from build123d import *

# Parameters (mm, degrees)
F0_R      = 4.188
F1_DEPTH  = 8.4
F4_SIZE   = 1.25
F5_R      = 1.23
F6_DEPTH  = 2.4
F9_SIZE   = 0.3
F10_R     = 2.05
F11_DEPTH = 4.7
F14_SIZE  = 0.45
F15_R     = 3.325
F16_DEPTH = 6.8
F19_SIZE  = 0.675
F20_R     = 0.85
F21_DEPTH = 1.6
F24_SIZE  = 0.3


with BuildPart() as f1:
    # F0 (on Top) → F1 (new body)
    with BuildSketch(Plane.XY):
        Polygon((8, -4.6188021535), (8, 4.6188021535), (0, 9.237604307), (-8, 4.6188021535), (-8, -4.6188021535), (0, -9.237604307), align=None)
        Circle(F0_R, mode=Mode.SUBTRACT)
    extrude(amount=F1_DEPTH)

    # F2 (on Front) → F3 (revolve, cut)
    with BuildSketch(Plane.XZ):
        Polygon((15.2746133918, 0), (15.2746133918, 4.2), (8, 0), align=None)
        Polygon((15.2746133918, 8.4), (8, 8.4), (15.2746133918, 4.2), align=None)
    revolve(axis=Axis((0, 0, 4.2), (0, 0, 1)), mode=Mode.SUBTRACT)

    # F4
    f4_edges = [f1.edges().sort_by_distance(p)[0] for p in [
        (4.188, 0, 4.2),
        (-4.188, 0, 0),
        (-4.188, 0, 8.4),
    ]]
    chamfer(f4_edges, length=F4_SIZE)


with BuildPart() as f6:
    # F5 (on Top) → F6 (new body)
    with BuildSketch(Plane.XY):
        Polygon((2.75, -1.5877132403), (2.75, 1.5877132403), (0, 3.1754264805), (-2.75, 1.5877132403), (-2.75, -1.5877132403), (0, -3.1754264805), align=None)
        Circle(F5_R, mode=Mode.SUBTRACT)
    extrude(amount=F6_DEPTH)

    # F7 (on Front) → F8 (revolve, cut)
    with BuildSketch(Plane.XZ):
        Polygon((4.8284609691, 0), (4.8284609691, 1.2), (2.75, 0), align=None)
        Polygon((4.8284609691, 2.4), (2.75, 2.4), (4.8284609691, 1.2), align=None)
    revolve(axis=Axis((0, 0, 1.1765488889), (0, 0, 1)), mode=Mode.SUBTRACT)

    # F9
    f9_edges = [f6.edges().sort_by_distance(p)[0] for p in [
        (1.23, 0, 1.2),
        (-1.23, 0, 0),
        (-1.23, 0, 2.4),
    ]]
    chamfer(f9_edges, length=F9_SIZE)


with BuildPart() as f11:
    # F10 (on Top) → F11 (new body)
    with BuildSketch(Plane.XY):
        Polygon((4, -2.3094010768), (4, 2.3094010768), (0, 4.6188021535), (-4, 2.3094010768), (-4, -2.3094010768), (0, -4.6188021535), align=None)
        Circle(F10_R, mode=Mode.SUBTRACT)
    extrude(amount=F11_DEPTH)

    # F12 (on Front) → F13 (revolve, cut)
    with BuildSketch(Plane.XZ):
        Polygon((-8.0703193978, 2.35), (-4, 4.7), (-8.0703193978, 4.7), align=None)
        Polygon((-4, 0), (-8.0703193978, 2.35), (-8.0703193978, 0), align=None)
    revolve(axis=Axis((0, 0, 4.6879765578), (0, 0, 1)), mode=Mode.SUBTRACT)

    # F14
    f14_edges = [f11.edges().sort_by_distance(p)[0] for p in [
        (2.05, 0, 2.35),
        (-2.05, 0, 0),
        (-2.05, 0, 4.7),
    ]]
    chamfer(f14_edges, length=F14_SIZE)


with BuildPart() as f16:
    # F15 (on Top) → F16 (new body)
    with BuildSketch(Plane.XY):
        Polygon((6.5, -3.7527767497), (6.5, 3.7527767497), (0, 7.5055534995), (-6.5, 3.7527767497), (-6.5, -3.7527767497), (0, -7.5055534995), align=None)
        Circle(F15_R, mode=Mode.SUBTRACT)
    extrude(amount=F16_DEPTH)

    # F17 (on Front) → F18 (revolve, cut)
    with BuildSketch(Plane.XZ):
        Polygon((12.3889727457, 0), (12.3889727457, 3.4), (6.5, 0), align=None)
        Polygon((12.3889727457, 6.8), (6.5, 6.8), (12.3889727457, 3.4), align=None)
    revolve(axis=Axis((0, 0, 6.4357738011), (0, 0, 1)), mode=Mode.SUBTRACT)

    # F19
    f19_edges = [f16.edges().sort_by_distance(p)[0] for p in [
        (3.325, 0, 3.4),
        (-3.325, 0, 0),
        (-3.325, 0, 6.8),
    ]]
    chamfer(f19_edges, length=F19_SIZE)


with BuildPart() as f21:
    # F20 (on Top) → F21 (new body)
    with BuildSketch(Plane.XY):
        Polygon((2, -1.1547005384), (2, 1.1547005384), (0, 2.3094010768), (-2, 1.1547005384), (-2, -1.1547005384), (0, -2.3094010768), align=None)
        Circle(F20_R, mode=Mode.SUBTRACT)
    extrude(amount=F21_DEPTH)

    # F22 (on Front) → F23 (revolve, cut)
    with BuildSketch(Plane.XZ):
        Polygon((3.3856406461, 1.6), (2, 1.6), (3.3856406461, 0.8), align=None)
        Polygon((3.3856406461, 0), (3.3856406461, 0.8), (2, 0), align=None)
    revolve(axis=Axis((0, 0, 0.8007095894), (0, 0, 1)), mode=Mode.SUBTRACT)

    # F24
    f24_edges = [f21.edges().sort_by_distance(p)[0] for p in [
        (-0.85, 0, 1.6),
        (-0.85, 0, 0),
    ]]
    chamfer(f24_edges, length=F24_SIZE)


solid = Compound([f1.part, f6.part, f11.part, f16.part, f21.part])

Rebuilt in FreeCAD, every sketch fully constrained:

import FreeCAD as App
import Part
import Sketcher
from FreeCAD import Vector
Q = App.Units.Quantity


def edges_at(feature, points):
    """Names of the edges that pass closest to the given points."""
    edges = feature.Shape.Edges
    near = lambda p: min(range(len(edges)), key=lambda i: edges[i].distToShape(Part.Vertex(*p))[0])
    return sorted({f"Edge{near(p) + 1}" for p in points})

doc = App.newDocument("Part")
body = doc.addObject("PartDesign::Body", "Body")

# Sketch on XY plane
sketch1 = body.newObject("Sketcher::SketchObject", "Sketch")
sketch1.AttachmentSupport = (doc.getObject("XY_Plane"), [""])
sketch1.MapMode = "FlatFace"
sketch1.addGeometry([
    Part.LineSegment(Vector(8, -4.6, 0), Vector(8, 4.6, 0)),  # 0
    Part.LineSegment(Vector(8, 4.6, 0), Vector(0, 9.2, 0)),  # 1
    Part.LineSegment(Vector(0, 9.2, 0), Vector(-8, 4.6, 0)),  # 2
    Part.LineSegment(Vector(-8, 4.6, 0), Vector(-8, -4.6, 0)),  # 3
    Part.LineSegment(Vector(-8, -4.6, 0), Vector(0, -9.2, 0)),  # 4
    Part.LineSegment(Vector(0, -9.2, 0), Vector(8, -4.6, 0)),  # 5
    Part.Circle(Vector(0, 0, 0), Vector(0, 0, 1), 4.2),  # 6
], False)
sketch1.addConstraint([
    Sketcher.Constraint("Coincident", 0, 2, 1, 1),
    Sketcher.Constraint("Coincident", 1, 2, 2, 1),
    Sketcher.Constraint("Coincident", 2, 2, 3, 1),
    Sketcher.Constraint("Coincident", 3, 2, 4, 1),
    Sketcher.Constraint("Coincident", 4, 2, 5, 1),
    Sketcher.Constraint("Coincident", 5, 2, 0, 1),
    Sketcher.Constraint("Vertical", 0),
    Sketcher.Constraint("Vertical", 3),
    Sketcher.Constraint("Coincident", 6, 3, -1, 1),
    Sketcher.Constraint("Symmetric", 0, 2, 3, 2, -1, 1),
    Sketcher.Constraint("Symmetric", 1, 2, 4, 2, -1, 1),
    Sketcher.Constraint("PointOnObject", 1, 2, -2),
    Sketcher.Constraint("Parallel", 2, 5),
    Sketcher.Constraint("Horizontal", 0, 2, 2, 2),
    Sketcher.Constraint("Angle", 1, Q("150 deg")),
    Sketcher.Constraint("Diameter", 6, 8.376),
    Sketcher.Constraint("DistanceX", -1, 1, 0, 2, 8.0),
    Sketcher.Constraint("DistanceY", 0, 1, 0, 2, 9.237604),
])
pad1 = body.newObject("PartDesign::Pad", "Pad")
pad1.Profile = sketch1
pad1.Length = 8.4

# Sketch on XZ plane
sketch2 = body.newObject("Sketcher::SketchObject", "Sketch001")
sketch2.AttachmentSupport = (doc.getObject("XZ_Plane"), [""])
sketch2.MapMode = "FlatFace"
sketch2.addGeometry([
    Part.LineSegment(Vector(15.3, 0, 0), Vector(15.3, 4.2, 0)),  # 0
    Part.LineSegment(Vector(15.3, 4.2, 0), Vector(8, 0, 0)),  # 1
    Part.LineSegment(Vector(8, 0, 0), Vector(15.3, 0, 0)),  # 2
    Part.LineSegment(Vector(15.3, 8.4, 0), Vector(8, 8.4, 0)),  # 3
    Part.LineSegment(Vector(8, 8.4, 0), Vector(15.3, 4.2, 0)),  # 4
    Part.LineSegment(Vector(15.3, 4.2, 0), Vector(15.3, 8.4, 0)),  # 5
], False)
sketch2.addConstraint([
    Sketcher.Constraint("Coincident", 0, 2, 1, 1),
    Sketcher.Constraint("Coincident", 1, 2, 2, 1),
    Sketcher.Constraint("Coincident", 2, 2, 0, 1),
    Sketcher.Constraint("Coincident", 3, 2, 4, 1),
    Sketcher.Constraint("Coincident", 4, 2, 5, 1),
    Sketcher.Constraint("Coincident", 5, 2, 3, 1),
    Sketcher.Constraint("Vertical", 0),
    Sketcher.Constraint("Horizontal", 2),
    Sketcher.Constraint("Horizontal", 3),
    Sketcher.Constraint("Vertical", 5),
    Sketcher.Constraint("Coincident", 4, 2, 0, 2),
    Sketcher.Constraint("PointOnObject", 1, 2, -1),
    Sketcher.Constraint("Vertical", 1, 2, 3, 2),
    Sketcher.Constraint("Equal", 0, 5),
    Sketcher.Constraint("Angle", 1, Q("-150 deg")),
    Sketcher.Constraint("DistanceY", 0, 1, 0, 2, 4.2),
    Sketcher.Constraint("DistanceX", -1, 1, 1, 2, 8.0),
])
groove = body.newObject("PartDesign::Groove", "Groove")
groove.Profile = sketch2
groove.ReferenceAxis = (sketch2, ["V_Axis"])
groove.Angle = 360
doc.recompute()

chamfer = body.newObject("PartDesign::Chamfer", "Chamfer")
chamfer.Base = (groove, edges_at(groove, [(4.188, 0, 4.2), (-4.188, 0, 0), (-4.188, 0, 8.4)]))
chamfer.Size = 1.25
body2 = doc.addObject("PartDesign::Body", "Body001")

# Sketch on XY plane
sketch3 = body2.newObject("Sketcher::SketchObject", "Sketch002")
sketch3.AttachmentSupport = (doc.getObject("XY_Plane001"), [""])
sketch3.MapMode = "FlatFace"
sketch3.addGeometry([
    Part.LineSegment(Vector(2.8, -1.6, 0), Vector(2.8, 1.6, 0)),  # 0
    Part.LineSegment(Vector(2.8, 1.6, 0), Vector(0, 3.2, 0)),  # 1
    Part.LineSegment(Vector(0, 3.2, 0), Vector(-2.8, 1.6, 0)),  # 2
    Part.LineSegment(Vector(-2.8, 1.6, 0), Vector(-2.8, -1.6, 0)),  # 3
    Part.LineSegment(Vector(-2.8, -1.6, 0), Vector(0, -3.2, 0)),  # 4
    Part.LineSegment(Vector(0, -3.2, 0), Vector(2.8, -1.6, 0)),  # 5
    Part.Circle(Vector(0, 0, 0), Vector(0, 0, 1), 1.2),  # 6
], False)
sketch3.addConstraint([
    Sketcher.Constraint("Coincident", 0, 2, 1, 1),
    Sketcher.Constraint("Coincident", 1, 2, 2, 1),
    Sketcher.Constraint("Coincident", 2, 2, 3, 1),
    Sketcher.Constraint("Coincident", 3, 2, 4, 1),
    Sketcher.Constraint("Coincident", 4, 2, 5, 1),
    Sketcher.Constraint("Coincident", 5, 2, 0, 1),
    Sketcher.Constraint("Vertical", 0),
    Sketcher.Constraint("Vertical", 3),
    Sketcher.Constraint("Coincident", 6, 3, -1, 1),
    Sketcher.Constraint("Symmetric", 0, 2, 3, 2, -1, 1),
    Sketcher.Constraint("Symmetric", 1, 2, 4, 2, -1, 1),
    Sketcher.Constraint("PointOnObject", 1, 2, -2),
    Sketcher.Constraint("Parallel", 2, 5),
    Sketcher.Constraint("Horizontal", 0, 2, 2, 2),
    Sketcher.Constraint("Diameter", 6, 2.46),
    Sketcher.Constraint("Angle", 1, Q("150 deg")),
    Sketcher.Constraint("DistanceX", 2, 2, 0, 2, 5.5),
    Sketcher.Constraint("DistanceY", 0, 1, 0, 2, 3.175426),
])
pad2 = body2.newObject("PartDesign::Pad", "Pad001")
pad2.Profile = sketch3
pad2.Length = 2.4

# Sketch on XZ plane
sketch4 = body2.newObject("Sketcher::SketchObject", "Sketch003")
sketch4.AttachmentSupport = (doc.getObject("XZ_Plane001"), [""])
sketch4.MapMode = "FlatFace"
sketch4.addGeometry([
    Part.LineSegment(Vector(4.8, 0, 0), Vector(4.8, 1.2, 0)),  # 0
    Part.LineSegment(Vector(4.8, 1.2, 0), Vector(2.8, 0, 0)),  # 1
    Part.LineSegment(Vector(2.8, 0, 0), Vector(4.8, 0, 0)),  # 2
    Part.LineSegment(Vector(4.8, 2.4, 0), Vector(2.8, 2.4, 0)),  # 3
    Part.LineSegment(Vector(2.8, 2.4, 0), Vector(4.8, 1.2, 0)),  # 4
    Part.LineSegment(Vector(4.8, 1.2, 0), Vector(4.8, 2.4, 0)),  # 5
], False)
sketch4.addConstraint([
    Sketcher.Constraint("Coincident", 0, 2, 1, 1),
    Sketcher.Constraint("Coincident", 1, 2, 2, 1),
    Sketcher.Constraint("Coincident", 2, 2, 0, 1),
    Sketcher.Constraint("Coincident", 3, 2, 4, 1),
    Sketcher.Constraint("Coincident", 4, 2, 5, 1),
    Sketcher.Constraint("Coincident", 5, 2, 3, 1),
    Sketcher.Constraint("Vertical", 0),
    Sketcher.Constraint("Horizontal", 2),
    Sketcher.Constraint("Horizontal", 3),
    Sketcher.Constraint("Vertical", 5),
    Sketcher.Constraint("Coincident", 4, 2, 0, 2),
    Sketcher.Constraint("PointOnObject", 1, 2, -1),
    Sketcher.Constraint("Vertical", 1, 2, 3, 2),
    Sketcher.Constraint("Equal", 0, 5),
    Sketcher.Constraint("Angle", 1, Q("-150 deg")),
    Sketcher.Constraint("DistanceY", 0, 1, 0, 2, 1.2),
    Sketcher.Constraint("DistanceX", -1, 1, 1, 2, 2.75),
])
groove2 = body2.newObject("PartDesign::Groove", "Groove001")
groove2.Profile = sketch4
groove2.ReferenceAxis = (sketch4, ["V_Axis"])
groove2.Angle = 360
doc.recompute()

chamfer2 = body2.newObject("PartDesign::Chamfer", "Chamfer001")
chamfer2.Base = (groove2, edges_at(groove2, [(1.23, 0, 1.2), (-1.23, 0, 0), (-1.23, 0, 2.4)]))
chamfer2.Size = 0.3
body3 = doc.addObject("PartDesign::Body", "Body002")

# Sketch on XY plane
sketch5 = body3.newObject("Sketcher::SketchObject", "Sketch004")
sketch5.AttachmentSupport = (doc.getObject("XY_Plane002"), [""])
sketch5.MapMode = "FlatFace"
sketch5.addGeometry([
    Part.LineSegment(Vector(4, -2.3, 0), Vector(4, 2.3, 0)),  # 0
    Part.LineSegment(Vector(4, 2.3, 0), Vector(0, 4.6, 0)),  # 1
    Part.LineSegment(Vector(0, 4.6, 0), Vector(-4, 2.3, 0)),  # 2
    Part.LineSegment(Vector(-4, 2.3, 0), Vector(-4, -2.3, 0)),  # 3
    Part.LineSegment(Vector(-4, -2.3, 0), Vector(0, -4.6, 0)),  # 4
    Part.LineSegment(Vector(0, -4.6, 0), Vector(4, -2.3, 0)),  # 5
    Part.Circle(Vector(0, 0, 0), Vector(0, 0, 1), 2),  # 6
], False)
sketch5.addConstraint([
    Sketcher.Constraint("Coincident", 0, 2, 1, 1),
    Sketcher.Constraint("Coincident", 1, 2, 2, 1),
    Sketcher.Constraint("Coincident", 2, 2, 3, 1),
    Sketcher.Constraint("Coincident", 3, 2, 4, 1),
    Sketcher.Constraint("Coincident", 4, 2, 5, 1),
    Sketcher.Constraint("Coincident", 5, 2, 0, 1),
    Sketcher.Constraint("Vertical", 0),
    Sketcher.Constraint("Vertical", 3),
    Sketcher.Constraint("Coincident", 6, 3, -1, 1),
    Sketcher.Constraint("Symmetric", 0, 2, 3, 2, -1, 1),
    Sketcher.Constraint("Symmetric", 1, 2, 4, 2, -1, 1),
    Sketcher.Constraint("PointOnObject", 1, 2, -2),
    Sketcher.Constraint("Parallel", 2, 5),
    Sketcher.Constraint("Horizontal", 0, 2, 2, 2),
    Sketcher.Constraint("Diameter", 6, 4.1),
    Sketcher.Constraint("Angle", 1, Q("150 deg")),
    Sketcher.Constraint("DistanceX", -1, 1, 0, 2, 4.0),
    Sketcher.Constraint("DistanceY", -1, 1, 0, 2, 2.309401),
])
pad3 = body3.newObject("PartDesign::Pad", "Pad002")
pad3.Profile = sketch5
pad3.Length = 4.7

# Sketch on XZ plane
sketch6 = body3.newObject("Sketcher::SketchObject", "Sketch005")
sketch6.AttachmentSupport = (doc.getObject("XZ_Plane002"), [""])
sketch6.MapMode = "FlatFace"
sketch6.addGeometry([
    Part.LineSegment(Vector(-8.1, 2.4, 0), Vector(-4, 4.7, 0)),  # 0
    Part.LineSegment(Vector(-4, 4.7, 0), Vector(-8.1, 4.7, 0)),  # 1
    Part.LineSegment(Vector(-8.1, 4.7, 0), Vector(-8.1, 2.4, 0)),  # 2
    Part.LineSegment(Vector(-4, 0, 0), Vector(-8.1, 2.4, 0)),  # 3
    Part.LineSegment(Vector(-8.1, 2.4, 0), Vector(-8.1, 0, 0)),  # 4
    Part.LineSegment(Vector(-8.1, 0, 0), Vector(-4, 0, 0)),  # 5
], False)
sketch6.addConstraint([
    Sketcher.Constraint("Coincident", 0, 2, 1, 1),
    Sketcher.Constraint("Coincident", 1, 2, 2, 1),
    Sketcher.Constraint("Coincident", 2, 2, 0, 1),
    Sketcher.Constraint("Coincident", 3, 2, 4, 1),
    Sketcher.Constraint("Coincident", 4, 2, 5, 1),
    Sketcher.Constraint("Coincident", 5, 2, 3, 1),
    Sketcher.Constraint("Horizontal", 1),
    Sketcher.Constraint("Vertical", 2),
    Sketcher.Constraint("Vertical", 4),
    Sketcher.Constraint("Horizontal", 5),
    Sketcher.Constraint("Coincident", 3, 2, 2, 2),
    Sketcher.Constraint("PointOnObject", 4, 2, -1),
    Sketcher.Constraint("Vertical", 0, 2, 5, 2),
    Sketcher.Constraint("Equal", 2, 4),
    Sketcher.Constraint("Angle", 0, Q("30 deg")),
    Sketcher.Constraint("DistanceX", 0, 2, -1, 1, 4.0),
    Sketcher.Constraint("Distance", 0, 4.7),
])
groove3 = body3.newObject("PartDesign::Groove", "Groove002")
groove3.Profile = sketch6
groove3.ReferenceAxis = (sketch6, ["V_Axis"])
groove3.Angle = 360
doc.recompute()

chamfer3 = body3.newObject("PartDesign::Chamfer", "Chamfer002")
chamfer3.Base = (groove3, edges_at(groove3, [(2.05, 0, 2.35), (-2.05, 0, 0), (-2.05, 0, 4.7)]))
chamfer3.Size = 0.45
body4 = doc.addObject("PartDesign::Body", "Body003")

# Sketch on XY plane
sketch7 = body4.newObject("Sketcher::SketchObject", "Sketch006")
sketch7.AttachmentSupport = (doc.getObject("XY_Plane003"), [""])
sketch7.MapMode = "FlatFace"
sketch7.addGeometry([
    Part.LineSegment(Vector(6.5, -3.8, 0), Vector(6.5, 3.8, 0)),  # 0
    Part.LineSegment(Vector(6.5, 3.8, 0), Vector(0, 7.5, 0)),  # 1
    Part.LineSegment(Vector(0, 7.5, 0), Vector(-6.5, 3.8, 0)),  # 2
    Part.LineSegment(Vector(-6.5, 3.8, 0), Vector(-6.5, -3.8, 0)),  # 3
    Part.LineSegment(Vector(-6.5, -3.8, 0), Vector(0, -7.5, 0)),  # 4
    Part.LineSegment(Vector(0, -7.5, 0), Vector(6.5, -3.8, 0)),  # 5
    Part.Circle(Vector(0, 0, 0), Vector(0, 0, 1), 3.3),  # 6
], False)
sketch7.addConstraint([
    Sketcher.Constraint("Coincident", 0, 2, 1, 1),
    Sketcher.Constraint("Coincident", 1, 2, 2, 1),
    Sketcher.Constraint("Coincident", 2, 2, 3, 1),
    Sketcher.Constraint("Coincident", 3, 2, 4, 1),
    Sketcher.Constraint("Coincident", 4, 2, 5, 1),
    Sketcher.Constraint("Coincident", 5, 2, 0, 1),
    Sketcher.Constraint("Vertical", 0),
    Sketcher.Constraint("Vertical", 3),
    Sketcher.Constraint("Coincident", 6, 3, -1, 1),
    Sketcher.Constraint("Symmetric", 0, 2, 3, 2, -1, 1),
    Sketcher.Constraint("Symmetric", 1, 2, 4, 2, -1, 1),
    Sketcher.Constraint("PointOnObject", 1, 2, -2),
    Sketcher.Constraint("Parallel", 2, 5),
    Sketcher.Constraint("Horizontal", 0, 2, 2, 2),
    Sketcher.Constraint("Diameter", 6, 6.65),
    Sketcher.Constraint("Angle", 1, Q("150 deg")),
    Sketcher.Constraint("DistanceX", 2, 2, 0, 2, 13.0),
    Sketcher.Constraint("DistanceY", 0, 1, 0, 2, 7.505554),
])
pad4 = body4.newObject("PartDesign::Pad", "Pad003")
pad4.Profile = sketch7
pad4.Length = 6.8

# Sketch on XZ plane
sketch8 = body4.newObject("Sketcher::SketchObject", "Sketch007")
sketch8.AttachmentSupport = (doc.getObject("XZ_Plane003"), [""])
sketch8.MapMode = "FlatFace"
sketch8.addGeometry([
    Part.LineSegment(Vector(12.4, 0, 0), Vector(12.4, 3.4, 0)),  # 0
    Part.LineSegment(Vector(12.4, 3.4, 0), Vector(6.5, 0, 0)),  # 1
    Part.LineSegment(Vector(6.5, 0, 0), Vector(12.4, 0, 0)),  # 2
    Part.LineSegment(Vector(12.4, 6.8, 0), Vector(6.5, 6.8, 0)),  # 3
    Part.LineSegment(Vector(6.5, 6.8, 0), Vector(12.4, 3.4, 0)),  # 4
    Part.LineSegment(Vector(12.4, 3.4, 0), Vector(12.4, 6.8, 0)),  # 5
], False)
sketch8.addConstraint([
    Sketcher.Constraint("Coincident", 0, 2, 1, 1),
    Sketcher.Constraint("Coincident", 1, 2, 2, 1),
    Sketcher.Constraint("Coincident", 2, 2, 0, 1),
    Sketcher.Constraint("Coincident", 3, 2, 4, 1),
    Sketcher.Constraint("Coincident", 4, 2, 5, 1),
    Sketcher.Constraint("Coincident", 5, 2, 3, 1),
    Sketcher.Constraint("Vertical", 0),
    Sketcher.Constraint("Horizontal", 2),
    Sketcher.Constraint("Horizontal", 3),
    Sketcher.Constraint("Vertical", 5),
    Sketcher.Constraint("Coincident", 4, 2, 0, 2),
    Sketcher.Constraint("PointOnObject", 1, 2, -1),
    Sketcher.Constraint("Vertical", 1, 2, 3, 2),
    Sketcher.Constraint("Equal", 0, 5),
    Sketcher.Constraint("Angle", 1, Q("-150 deg")),
    Sketcher.Constraint("DistanceY", 0, 1, 0, 2, 3.4),
    Sketcher.Constraint("DistanceX", -1, 1, 1, 2, 6.5),
])
groove4 = body4.newObject("PartDesign::Groove", "Groove003")
groove4.Profile = sketch8
groove4.ReferenceAxis = (sketch8, ["V_Axis"])
groove4.Angle = 360
doc.recompute()

chamfer4 = body4.newObject("PartDesign::Chamfer", "Chamfer003")
chamfer4.Base = (groove4, edges_at(groove4, [(3.325, 0, 3.4), (-3.325, 0, 0), (-3.325, 0, 6.8)]))
chamfer4.Size = 0.675
body5 = doc.addObject("PartDesign::Body", "Body004")

# Sketch on XY plane
sketch9 = body5.newObject("Sketcher::SketchObject", "Sketch008")
sketch9.AttachmentSupport = (doc.getObject("XY_Plane004"), [""])
sketch9.MapMode = "FlatFace"
sketch9.addGeometry([
    Part.LineSegment(Vector(2, -1.2, 0), Vector(2, 1.2, 0)),  # 0
    Part.LineSegment(Vector(2, 1.2, 0), Vector(0, 2.3, 0)),  # 1
    Part.LineSegment(Vector(0, 2.3, 0), Vector(-2, 1.2, 0)),  # 2
    Part.LineSegment(Vector(-2, 1.2, 0), Vector(-2, -1.2, 0)),  # 3
    Part.LineSegment(Vector(-2, -1.2, 0), Vector(0, -2.3, 0)),  # 4
    Part.LineSegment(Vector(0, -2.3, 0), Vector(2, -1.2, 0)),  # 5
    Part.Circle(Vector(0, 0, 0), Vector(0, 0, 1), 0.8),  # 6
], False)
sketch9.addConstraint([
    Sketcher.Constraint("Coincident", 0, 2, 1, 1),
    Sketcher.Constraint("Coincident", 1, 2, 2, 1),
    Sketcher.Constraint("Coincident", 2, 2, 3, 1),
    Sketcher.Constraint("Coincident", 3, 2, 4, 1),
    Sketcher.Constraint("Coincident", 4, 2, 5, 1),
    Sketcher.Constraint("Coincident", 5, 2, 0, 1),
    Sketcher.Constraint("Vertical", 0),
    Sketcher.Constraint("Vertical", 3),
    Sketcher.Constraint("Coincident", 6, 3, -1, 1),
    Sketcher.Constraint("Symmetric", 0, 2, 3, 2, -1, 1),
    Sketcher.Constraint("Symmetric", 1, 2, 4, 2, -1, 1),
    Sketcher.Constraint("PointOnObject", 1, 2, -2),
    Sketcher.Constraint("Parallel", 2, 5),
    Sketcher.Constraint("Horizontal", 0, 2, 2, 2),
    Sketcher.Constraint("Diameter", 6, 1.7),
    Sketcher.Constraint("Angle", 1, Q("150 deg")),
    Sketcher.Constraint("DistanceX", -1, 1, 0, 2, 2.0),
    Sketcher.Constraint("DistanceY", 0, 1, 0, 2, 2.309401),
])
pad5 = body5.newObject("PartDesign::Pad", "Pad004")
pad5.Profile = sketch9
pad5.Length = 1.6

# Sketch on XZ plane
sketch10 = body5.newObject("Sketcher::SketchObject", "Sketch009")
sketch10.AttachmentSupport = (doc.getObject("XZ_Plane004"), [""])
sketch10.MapMode = "FlatFace"
sketch10.addGeometry([
    Part.LineSegment(Vector(3.4, 1.6, 0), Vector(2, 1.6, 0)),  # 0
    Part.LineSegment(Vector(2, 1.6, 0), Vector(3.4, 0.8, 0)),  # 1
    Part.LineSegment(Vector(3.4, 0.8, 0), Vector(3.4, 1.6, 0)),  # 2
    Part.LineSegment(Vector(3.4, 0, 0), Vector(3.4, 0.8, 0)),  # 3
    Part.LineSegment(Vector(3.4, 0.8, 0), Vector(2, 0, 0)),  # 4
    Part.LineSegment(Vector(2, 0, 0), Vector(3.4, 0, 0)),  # 5
], False)
sketch10.addConstraint([
    Sketcher.Constraint("Coincident", 0, 2, 1, 1),
    Sketcher.Constraint("Coincident", 1, 2, 2, 1),
    Sketcher.Constraint("Coincident", 2, 2, 0, 1),
    Sketcher.Constraint("Coincident", 3, 2, 4, 1),
    Sketcher.Constraint("Coincident", 4, 2, 5, 1),
    Sketcher.Constraint("Coincident", 5, 2, 3, 1),
    Sketcher.Constraint("Horizontal", 0),
    Sketcher.Constraint("Vertical", 2),
    Sketcher.Constraint("Vertical", 3),
    Sketcher.Constraint("Horizontal", 5),
    Sketcher.Constraint("Coincident", 3, 2, 1, 2),
    Sketcher.Constraint("PointOnObject", 4, 2, -1),
    Sketcher.Constraint("Vertical", 0, 2, 4, 2),
    Sketcher.Constraint("Equal", 2, 3),
    Sketcher.Constraint("Angle", 1, Q("-30 deg")),
    Sketcher.Constraint("DistanceY", 2, 1, 2, 2, 0.8),
    Sketcher.Constraint("DistanceX", -1, 1, 0, 2, 2.0),
])
groove5 = body5.newObject("PartDesign::Groove", "Groove004")
groove5.Profile = sketch10
groove5.ReferenceAxis = (sketch10, ["V_Axis"])
groove5.Angle = 360
doc.recompute()

chamfer5 = body5.newObject("PartDesign::Chamfer", "Chamfer004")
chamfer5.Base = (groove5, edges_at(groove5, [(-0.85, 0, 1.6), (-0.85, 0, 0)]))
chamfer5.Size = 0.3

doc.recompute()
